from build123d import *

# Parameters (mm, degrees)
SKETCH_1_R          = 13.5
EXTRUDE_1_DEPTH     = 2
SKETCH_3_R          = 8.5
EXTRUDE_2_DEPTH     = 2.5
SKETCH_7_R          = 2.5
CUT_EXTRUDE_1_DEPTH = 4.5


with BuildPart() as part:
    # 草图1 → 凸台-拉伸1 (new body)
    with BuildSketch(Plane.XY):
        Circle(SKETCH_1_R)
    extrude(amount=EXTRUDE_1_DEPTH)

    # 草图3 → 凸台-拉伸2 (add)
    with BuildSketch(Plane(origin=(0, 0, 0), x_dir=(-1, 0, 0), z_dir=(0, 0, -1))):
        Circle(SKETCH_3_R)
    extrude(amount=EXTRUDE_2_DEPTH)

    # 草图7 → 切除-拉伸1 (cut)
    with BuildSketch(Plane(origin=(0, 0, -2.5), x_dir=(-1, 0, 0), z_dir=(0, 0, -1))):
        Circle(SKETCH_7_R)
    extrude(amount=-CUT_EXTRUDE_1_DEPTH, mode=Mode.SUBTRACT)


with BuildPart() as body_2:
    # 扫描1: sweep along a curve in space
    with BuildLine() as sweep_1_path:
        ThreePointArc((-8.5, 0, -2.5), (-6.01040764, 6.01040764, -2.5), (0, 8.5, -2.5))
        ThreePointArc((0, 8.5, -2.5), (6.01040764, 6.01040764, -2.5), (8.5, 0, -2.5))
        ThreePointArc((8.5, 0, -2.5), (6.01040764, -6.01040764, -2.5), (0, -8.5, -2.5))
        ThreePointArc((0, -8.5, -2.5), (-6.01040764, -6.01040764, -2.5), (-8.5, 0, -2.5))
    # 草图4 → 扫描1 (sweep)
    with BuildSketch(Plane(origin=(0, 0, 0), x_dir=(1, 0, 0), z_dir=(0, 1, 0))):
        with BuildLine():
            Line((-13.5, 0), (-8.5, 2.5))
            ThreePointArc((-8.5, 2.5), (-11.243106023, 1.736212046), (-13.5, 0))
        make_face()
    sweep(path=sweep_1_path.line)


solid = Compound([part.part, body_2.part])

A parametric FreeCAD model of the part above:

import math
import FreeCAD as App
import Part
import Sketcher
from FreeCAD import Vector
Q = App.Units.Quantity

doc = App.newDocument("Part")
body = doc.addObject("PartDesign::Body", "Body")

# Sketch on XY plane
sketch1 = body.newObject("Sketcher::SketchObject", "Sketch")
sketch1.AttachmentSupport = (doc.getObject("XY_Plane"), [""])
sketch1.MapMode = "FlatFace"
sketch1.addGeometry(Part.Circle(Vector(0, 0, 0), Vector(0, 0, 1), 14), False)
sketch1.addConstraint(Sketcher.Constraint("Coincident", 0, 3, -1, 1))
sketch1.addConstraint(Sketcher.Constraint("Diameter", 0, Q("27 mm")))
pad1 = body.newObject("PartDesign::Pad", "Pad")
pad1.Profile = sketch1
pad1.Length = 2

# Sketch on XY plane
sketch2 = body.newObject("Sketcher::SketchObject", "Sketch001")
sketch2.AttachmentSupport = (doc.getObject("XY_Plane"), [""])
sketch2.MapMode = "FlatFace"
sketch2.addGeometry(Part.Circle(Vector(0, 0, 0), Vector(0, 0, 1), 8), False)
sketch2.addConstraint(Sketcher.Constraint("Coincident", 0, 3, -1, 1))
sketch2.addConstraint(Sketcher.Constraint("Diameter", 0, Q("17 mm")))
pad2 = body.newObject("PartDesign::Pad", "Pad001")
pad2.Profile = sketch2
pad2.Length = 2.5
pad2.Reversed = True

# Sketch on XY plane
sketch3 = body.newObject("Sketcher::SketchObject", "Sketch002")
sketch3.AttachmentSupport = (doc.getObject("XY_Plane"), [""])
sketch3.MapMode = "FlatFace"
sketch3.AttachmentOffset = App.Placement(Vector(0, 0, -2.5), App.Rotation())
sketch3.addGeometry(Part.Circle(Vector(0, 0, 0), Vector(0, 0, 1), 2.5), False)
sketch3.addConstraint(Sketcher.Constraint("Coincident", 0, 3, -1, 1))
sketch3.addConstraint(Sketcher.Constraint("Diameter", 0, Q("5 mm")))
pocket1 = body.newObject("PartDesign::Pocket", "Pocket")
pocket1.Profile = sketch3
pocket1.Length = 4.5
pocket1.Reversed = True
body2 = doc.addObject("PartDesign::Body", "Body001")

# Sketch on XZ plane
sketch4 = body2.newObject("Sketcher::SketchObject", "Sketch003")
sketch4.AttachmentSupport = (doc.getObject("XZ_Plane001"), [""])
sketch4.MapMode = "FlatFace"
sketch4.addGeometry(Part.LineSegment(Vector(-14, 0, 0), Vector(-8, -2, 0)), False)
sketch4.addGeometry(Part.ArcOfCircle(Part.Circle(Vector(-8, 5, 0), Vector(0, 0, 1), 7), math.radians(-139), math.radians(-95)), False)
sketch4.addConstraint(Sketcher.Constraint("Coincident", 0, 1, 1, 1))
sketch4.addConstraint(Sketcher.Constraint("Coincident", 1, 2, 0, 2))
sketch4.addConstraint(Sketcher.Constraint("PointOnObject", 0, 1, -1))
sketch4.addConstraint(Sketcher.Constraint("DistanceX", 0, 1, 1, 2, Q("5 mm")))
sketch4.addConstraint(Sketcher.Constraint("DistanceX", 0, 1, -1, 1, Q("13.5 mm")))
sketch4.addConstraint(Sketcher.Constraint("DistanceY", 1, 2, -1, 1, Q("2.5 mm")))
sketch4.addConstraint(Sketcher.Constraint("Radius", 1, Q("7.45767 mm")))

# Sketch on XY plane
sketch5 = body2.newObject("Sketcher::SketchObject", "Sketch004")
sketch5.AttachmentSupport = (doc.getObject("XY_Plane001"), [""])
sketch5.MapMode = "FlatFace"
sketch5.AttachmentOffset = App.Placement(Vector(0, 0, -2.5), App.Rotation())
sketch5.addGeometry(Part.ArcOfCircle(Part.Circle(Vector(0, 0, 0), Vector(0, 0, 1), 8), math.radians(90), math.radians(180)), False)
sketch5.addGeometry(Part.ArcOfCircle(Part.Circle(Vector(0, 0, 0), Vector(0, 0, 1), 8), math.radians(0), math.radians(90)), False)
sketch5.addGeometry(Part.ArcOfCircle(Part.Circle(Vector(0, 0, 0), Vector(0, 0, 1), 8), math.radians(-90), math.radians(0)), False)
sketch5.addGeometry(Part.ArcOfCircle(Part.Circle(Vector(0, 0, 0), Vector(0, 0, 1), 8), math.radians(180), math.radians(270)), False)
sketch5.addConstraint(Sketcher.Constraint("Tangent", 0, 1, 1, 2))
sketch5.addConstraint(Sketcher.Constraint("Tangent", 1, 1, 2, 2))
sketch5.addConstraint(Sketcher.Constraint("Tangent", 2, 1, 3, 2))
sketch5.addConstraint(Sketcher.Constraint("Tangent", 3, 1, 0, 2))
sketch5.addConstraint(Sketcher.Constraint("Coincident", 0, 3, -1, 1))
sketch5.addConstraint(Sketcher.Constraint("Equal", 0, 1))
sketch5.addConstraint(Sketcher.Constraint("PointOnObject", 0, 1, -2))
sketch5.addConstraint(Sketcher.Constraint("PointOnObject", 1, 1, -1))
sketch5.addConstraint(Sketcher.Constraint("PointOnObject", 2, 1, -2))
sketch5.addConstraint(Sketcher.Constraint("PointOnObject", 3, 1, -1))
sketch5.addConstraint(Sketcher.Constraint("Radius", 0, Q("8.5 mm")))
doc.recompute()

additivepipe = body2.newObject("PartDesign::AdditivePipe", "AdditivePipe")
additivepipe.Profile = sketch4
additivepipe.Spine = (sketch5, ["Edge1", "Edge2", "Edge3", "Edge4"])

doc.recompute()
